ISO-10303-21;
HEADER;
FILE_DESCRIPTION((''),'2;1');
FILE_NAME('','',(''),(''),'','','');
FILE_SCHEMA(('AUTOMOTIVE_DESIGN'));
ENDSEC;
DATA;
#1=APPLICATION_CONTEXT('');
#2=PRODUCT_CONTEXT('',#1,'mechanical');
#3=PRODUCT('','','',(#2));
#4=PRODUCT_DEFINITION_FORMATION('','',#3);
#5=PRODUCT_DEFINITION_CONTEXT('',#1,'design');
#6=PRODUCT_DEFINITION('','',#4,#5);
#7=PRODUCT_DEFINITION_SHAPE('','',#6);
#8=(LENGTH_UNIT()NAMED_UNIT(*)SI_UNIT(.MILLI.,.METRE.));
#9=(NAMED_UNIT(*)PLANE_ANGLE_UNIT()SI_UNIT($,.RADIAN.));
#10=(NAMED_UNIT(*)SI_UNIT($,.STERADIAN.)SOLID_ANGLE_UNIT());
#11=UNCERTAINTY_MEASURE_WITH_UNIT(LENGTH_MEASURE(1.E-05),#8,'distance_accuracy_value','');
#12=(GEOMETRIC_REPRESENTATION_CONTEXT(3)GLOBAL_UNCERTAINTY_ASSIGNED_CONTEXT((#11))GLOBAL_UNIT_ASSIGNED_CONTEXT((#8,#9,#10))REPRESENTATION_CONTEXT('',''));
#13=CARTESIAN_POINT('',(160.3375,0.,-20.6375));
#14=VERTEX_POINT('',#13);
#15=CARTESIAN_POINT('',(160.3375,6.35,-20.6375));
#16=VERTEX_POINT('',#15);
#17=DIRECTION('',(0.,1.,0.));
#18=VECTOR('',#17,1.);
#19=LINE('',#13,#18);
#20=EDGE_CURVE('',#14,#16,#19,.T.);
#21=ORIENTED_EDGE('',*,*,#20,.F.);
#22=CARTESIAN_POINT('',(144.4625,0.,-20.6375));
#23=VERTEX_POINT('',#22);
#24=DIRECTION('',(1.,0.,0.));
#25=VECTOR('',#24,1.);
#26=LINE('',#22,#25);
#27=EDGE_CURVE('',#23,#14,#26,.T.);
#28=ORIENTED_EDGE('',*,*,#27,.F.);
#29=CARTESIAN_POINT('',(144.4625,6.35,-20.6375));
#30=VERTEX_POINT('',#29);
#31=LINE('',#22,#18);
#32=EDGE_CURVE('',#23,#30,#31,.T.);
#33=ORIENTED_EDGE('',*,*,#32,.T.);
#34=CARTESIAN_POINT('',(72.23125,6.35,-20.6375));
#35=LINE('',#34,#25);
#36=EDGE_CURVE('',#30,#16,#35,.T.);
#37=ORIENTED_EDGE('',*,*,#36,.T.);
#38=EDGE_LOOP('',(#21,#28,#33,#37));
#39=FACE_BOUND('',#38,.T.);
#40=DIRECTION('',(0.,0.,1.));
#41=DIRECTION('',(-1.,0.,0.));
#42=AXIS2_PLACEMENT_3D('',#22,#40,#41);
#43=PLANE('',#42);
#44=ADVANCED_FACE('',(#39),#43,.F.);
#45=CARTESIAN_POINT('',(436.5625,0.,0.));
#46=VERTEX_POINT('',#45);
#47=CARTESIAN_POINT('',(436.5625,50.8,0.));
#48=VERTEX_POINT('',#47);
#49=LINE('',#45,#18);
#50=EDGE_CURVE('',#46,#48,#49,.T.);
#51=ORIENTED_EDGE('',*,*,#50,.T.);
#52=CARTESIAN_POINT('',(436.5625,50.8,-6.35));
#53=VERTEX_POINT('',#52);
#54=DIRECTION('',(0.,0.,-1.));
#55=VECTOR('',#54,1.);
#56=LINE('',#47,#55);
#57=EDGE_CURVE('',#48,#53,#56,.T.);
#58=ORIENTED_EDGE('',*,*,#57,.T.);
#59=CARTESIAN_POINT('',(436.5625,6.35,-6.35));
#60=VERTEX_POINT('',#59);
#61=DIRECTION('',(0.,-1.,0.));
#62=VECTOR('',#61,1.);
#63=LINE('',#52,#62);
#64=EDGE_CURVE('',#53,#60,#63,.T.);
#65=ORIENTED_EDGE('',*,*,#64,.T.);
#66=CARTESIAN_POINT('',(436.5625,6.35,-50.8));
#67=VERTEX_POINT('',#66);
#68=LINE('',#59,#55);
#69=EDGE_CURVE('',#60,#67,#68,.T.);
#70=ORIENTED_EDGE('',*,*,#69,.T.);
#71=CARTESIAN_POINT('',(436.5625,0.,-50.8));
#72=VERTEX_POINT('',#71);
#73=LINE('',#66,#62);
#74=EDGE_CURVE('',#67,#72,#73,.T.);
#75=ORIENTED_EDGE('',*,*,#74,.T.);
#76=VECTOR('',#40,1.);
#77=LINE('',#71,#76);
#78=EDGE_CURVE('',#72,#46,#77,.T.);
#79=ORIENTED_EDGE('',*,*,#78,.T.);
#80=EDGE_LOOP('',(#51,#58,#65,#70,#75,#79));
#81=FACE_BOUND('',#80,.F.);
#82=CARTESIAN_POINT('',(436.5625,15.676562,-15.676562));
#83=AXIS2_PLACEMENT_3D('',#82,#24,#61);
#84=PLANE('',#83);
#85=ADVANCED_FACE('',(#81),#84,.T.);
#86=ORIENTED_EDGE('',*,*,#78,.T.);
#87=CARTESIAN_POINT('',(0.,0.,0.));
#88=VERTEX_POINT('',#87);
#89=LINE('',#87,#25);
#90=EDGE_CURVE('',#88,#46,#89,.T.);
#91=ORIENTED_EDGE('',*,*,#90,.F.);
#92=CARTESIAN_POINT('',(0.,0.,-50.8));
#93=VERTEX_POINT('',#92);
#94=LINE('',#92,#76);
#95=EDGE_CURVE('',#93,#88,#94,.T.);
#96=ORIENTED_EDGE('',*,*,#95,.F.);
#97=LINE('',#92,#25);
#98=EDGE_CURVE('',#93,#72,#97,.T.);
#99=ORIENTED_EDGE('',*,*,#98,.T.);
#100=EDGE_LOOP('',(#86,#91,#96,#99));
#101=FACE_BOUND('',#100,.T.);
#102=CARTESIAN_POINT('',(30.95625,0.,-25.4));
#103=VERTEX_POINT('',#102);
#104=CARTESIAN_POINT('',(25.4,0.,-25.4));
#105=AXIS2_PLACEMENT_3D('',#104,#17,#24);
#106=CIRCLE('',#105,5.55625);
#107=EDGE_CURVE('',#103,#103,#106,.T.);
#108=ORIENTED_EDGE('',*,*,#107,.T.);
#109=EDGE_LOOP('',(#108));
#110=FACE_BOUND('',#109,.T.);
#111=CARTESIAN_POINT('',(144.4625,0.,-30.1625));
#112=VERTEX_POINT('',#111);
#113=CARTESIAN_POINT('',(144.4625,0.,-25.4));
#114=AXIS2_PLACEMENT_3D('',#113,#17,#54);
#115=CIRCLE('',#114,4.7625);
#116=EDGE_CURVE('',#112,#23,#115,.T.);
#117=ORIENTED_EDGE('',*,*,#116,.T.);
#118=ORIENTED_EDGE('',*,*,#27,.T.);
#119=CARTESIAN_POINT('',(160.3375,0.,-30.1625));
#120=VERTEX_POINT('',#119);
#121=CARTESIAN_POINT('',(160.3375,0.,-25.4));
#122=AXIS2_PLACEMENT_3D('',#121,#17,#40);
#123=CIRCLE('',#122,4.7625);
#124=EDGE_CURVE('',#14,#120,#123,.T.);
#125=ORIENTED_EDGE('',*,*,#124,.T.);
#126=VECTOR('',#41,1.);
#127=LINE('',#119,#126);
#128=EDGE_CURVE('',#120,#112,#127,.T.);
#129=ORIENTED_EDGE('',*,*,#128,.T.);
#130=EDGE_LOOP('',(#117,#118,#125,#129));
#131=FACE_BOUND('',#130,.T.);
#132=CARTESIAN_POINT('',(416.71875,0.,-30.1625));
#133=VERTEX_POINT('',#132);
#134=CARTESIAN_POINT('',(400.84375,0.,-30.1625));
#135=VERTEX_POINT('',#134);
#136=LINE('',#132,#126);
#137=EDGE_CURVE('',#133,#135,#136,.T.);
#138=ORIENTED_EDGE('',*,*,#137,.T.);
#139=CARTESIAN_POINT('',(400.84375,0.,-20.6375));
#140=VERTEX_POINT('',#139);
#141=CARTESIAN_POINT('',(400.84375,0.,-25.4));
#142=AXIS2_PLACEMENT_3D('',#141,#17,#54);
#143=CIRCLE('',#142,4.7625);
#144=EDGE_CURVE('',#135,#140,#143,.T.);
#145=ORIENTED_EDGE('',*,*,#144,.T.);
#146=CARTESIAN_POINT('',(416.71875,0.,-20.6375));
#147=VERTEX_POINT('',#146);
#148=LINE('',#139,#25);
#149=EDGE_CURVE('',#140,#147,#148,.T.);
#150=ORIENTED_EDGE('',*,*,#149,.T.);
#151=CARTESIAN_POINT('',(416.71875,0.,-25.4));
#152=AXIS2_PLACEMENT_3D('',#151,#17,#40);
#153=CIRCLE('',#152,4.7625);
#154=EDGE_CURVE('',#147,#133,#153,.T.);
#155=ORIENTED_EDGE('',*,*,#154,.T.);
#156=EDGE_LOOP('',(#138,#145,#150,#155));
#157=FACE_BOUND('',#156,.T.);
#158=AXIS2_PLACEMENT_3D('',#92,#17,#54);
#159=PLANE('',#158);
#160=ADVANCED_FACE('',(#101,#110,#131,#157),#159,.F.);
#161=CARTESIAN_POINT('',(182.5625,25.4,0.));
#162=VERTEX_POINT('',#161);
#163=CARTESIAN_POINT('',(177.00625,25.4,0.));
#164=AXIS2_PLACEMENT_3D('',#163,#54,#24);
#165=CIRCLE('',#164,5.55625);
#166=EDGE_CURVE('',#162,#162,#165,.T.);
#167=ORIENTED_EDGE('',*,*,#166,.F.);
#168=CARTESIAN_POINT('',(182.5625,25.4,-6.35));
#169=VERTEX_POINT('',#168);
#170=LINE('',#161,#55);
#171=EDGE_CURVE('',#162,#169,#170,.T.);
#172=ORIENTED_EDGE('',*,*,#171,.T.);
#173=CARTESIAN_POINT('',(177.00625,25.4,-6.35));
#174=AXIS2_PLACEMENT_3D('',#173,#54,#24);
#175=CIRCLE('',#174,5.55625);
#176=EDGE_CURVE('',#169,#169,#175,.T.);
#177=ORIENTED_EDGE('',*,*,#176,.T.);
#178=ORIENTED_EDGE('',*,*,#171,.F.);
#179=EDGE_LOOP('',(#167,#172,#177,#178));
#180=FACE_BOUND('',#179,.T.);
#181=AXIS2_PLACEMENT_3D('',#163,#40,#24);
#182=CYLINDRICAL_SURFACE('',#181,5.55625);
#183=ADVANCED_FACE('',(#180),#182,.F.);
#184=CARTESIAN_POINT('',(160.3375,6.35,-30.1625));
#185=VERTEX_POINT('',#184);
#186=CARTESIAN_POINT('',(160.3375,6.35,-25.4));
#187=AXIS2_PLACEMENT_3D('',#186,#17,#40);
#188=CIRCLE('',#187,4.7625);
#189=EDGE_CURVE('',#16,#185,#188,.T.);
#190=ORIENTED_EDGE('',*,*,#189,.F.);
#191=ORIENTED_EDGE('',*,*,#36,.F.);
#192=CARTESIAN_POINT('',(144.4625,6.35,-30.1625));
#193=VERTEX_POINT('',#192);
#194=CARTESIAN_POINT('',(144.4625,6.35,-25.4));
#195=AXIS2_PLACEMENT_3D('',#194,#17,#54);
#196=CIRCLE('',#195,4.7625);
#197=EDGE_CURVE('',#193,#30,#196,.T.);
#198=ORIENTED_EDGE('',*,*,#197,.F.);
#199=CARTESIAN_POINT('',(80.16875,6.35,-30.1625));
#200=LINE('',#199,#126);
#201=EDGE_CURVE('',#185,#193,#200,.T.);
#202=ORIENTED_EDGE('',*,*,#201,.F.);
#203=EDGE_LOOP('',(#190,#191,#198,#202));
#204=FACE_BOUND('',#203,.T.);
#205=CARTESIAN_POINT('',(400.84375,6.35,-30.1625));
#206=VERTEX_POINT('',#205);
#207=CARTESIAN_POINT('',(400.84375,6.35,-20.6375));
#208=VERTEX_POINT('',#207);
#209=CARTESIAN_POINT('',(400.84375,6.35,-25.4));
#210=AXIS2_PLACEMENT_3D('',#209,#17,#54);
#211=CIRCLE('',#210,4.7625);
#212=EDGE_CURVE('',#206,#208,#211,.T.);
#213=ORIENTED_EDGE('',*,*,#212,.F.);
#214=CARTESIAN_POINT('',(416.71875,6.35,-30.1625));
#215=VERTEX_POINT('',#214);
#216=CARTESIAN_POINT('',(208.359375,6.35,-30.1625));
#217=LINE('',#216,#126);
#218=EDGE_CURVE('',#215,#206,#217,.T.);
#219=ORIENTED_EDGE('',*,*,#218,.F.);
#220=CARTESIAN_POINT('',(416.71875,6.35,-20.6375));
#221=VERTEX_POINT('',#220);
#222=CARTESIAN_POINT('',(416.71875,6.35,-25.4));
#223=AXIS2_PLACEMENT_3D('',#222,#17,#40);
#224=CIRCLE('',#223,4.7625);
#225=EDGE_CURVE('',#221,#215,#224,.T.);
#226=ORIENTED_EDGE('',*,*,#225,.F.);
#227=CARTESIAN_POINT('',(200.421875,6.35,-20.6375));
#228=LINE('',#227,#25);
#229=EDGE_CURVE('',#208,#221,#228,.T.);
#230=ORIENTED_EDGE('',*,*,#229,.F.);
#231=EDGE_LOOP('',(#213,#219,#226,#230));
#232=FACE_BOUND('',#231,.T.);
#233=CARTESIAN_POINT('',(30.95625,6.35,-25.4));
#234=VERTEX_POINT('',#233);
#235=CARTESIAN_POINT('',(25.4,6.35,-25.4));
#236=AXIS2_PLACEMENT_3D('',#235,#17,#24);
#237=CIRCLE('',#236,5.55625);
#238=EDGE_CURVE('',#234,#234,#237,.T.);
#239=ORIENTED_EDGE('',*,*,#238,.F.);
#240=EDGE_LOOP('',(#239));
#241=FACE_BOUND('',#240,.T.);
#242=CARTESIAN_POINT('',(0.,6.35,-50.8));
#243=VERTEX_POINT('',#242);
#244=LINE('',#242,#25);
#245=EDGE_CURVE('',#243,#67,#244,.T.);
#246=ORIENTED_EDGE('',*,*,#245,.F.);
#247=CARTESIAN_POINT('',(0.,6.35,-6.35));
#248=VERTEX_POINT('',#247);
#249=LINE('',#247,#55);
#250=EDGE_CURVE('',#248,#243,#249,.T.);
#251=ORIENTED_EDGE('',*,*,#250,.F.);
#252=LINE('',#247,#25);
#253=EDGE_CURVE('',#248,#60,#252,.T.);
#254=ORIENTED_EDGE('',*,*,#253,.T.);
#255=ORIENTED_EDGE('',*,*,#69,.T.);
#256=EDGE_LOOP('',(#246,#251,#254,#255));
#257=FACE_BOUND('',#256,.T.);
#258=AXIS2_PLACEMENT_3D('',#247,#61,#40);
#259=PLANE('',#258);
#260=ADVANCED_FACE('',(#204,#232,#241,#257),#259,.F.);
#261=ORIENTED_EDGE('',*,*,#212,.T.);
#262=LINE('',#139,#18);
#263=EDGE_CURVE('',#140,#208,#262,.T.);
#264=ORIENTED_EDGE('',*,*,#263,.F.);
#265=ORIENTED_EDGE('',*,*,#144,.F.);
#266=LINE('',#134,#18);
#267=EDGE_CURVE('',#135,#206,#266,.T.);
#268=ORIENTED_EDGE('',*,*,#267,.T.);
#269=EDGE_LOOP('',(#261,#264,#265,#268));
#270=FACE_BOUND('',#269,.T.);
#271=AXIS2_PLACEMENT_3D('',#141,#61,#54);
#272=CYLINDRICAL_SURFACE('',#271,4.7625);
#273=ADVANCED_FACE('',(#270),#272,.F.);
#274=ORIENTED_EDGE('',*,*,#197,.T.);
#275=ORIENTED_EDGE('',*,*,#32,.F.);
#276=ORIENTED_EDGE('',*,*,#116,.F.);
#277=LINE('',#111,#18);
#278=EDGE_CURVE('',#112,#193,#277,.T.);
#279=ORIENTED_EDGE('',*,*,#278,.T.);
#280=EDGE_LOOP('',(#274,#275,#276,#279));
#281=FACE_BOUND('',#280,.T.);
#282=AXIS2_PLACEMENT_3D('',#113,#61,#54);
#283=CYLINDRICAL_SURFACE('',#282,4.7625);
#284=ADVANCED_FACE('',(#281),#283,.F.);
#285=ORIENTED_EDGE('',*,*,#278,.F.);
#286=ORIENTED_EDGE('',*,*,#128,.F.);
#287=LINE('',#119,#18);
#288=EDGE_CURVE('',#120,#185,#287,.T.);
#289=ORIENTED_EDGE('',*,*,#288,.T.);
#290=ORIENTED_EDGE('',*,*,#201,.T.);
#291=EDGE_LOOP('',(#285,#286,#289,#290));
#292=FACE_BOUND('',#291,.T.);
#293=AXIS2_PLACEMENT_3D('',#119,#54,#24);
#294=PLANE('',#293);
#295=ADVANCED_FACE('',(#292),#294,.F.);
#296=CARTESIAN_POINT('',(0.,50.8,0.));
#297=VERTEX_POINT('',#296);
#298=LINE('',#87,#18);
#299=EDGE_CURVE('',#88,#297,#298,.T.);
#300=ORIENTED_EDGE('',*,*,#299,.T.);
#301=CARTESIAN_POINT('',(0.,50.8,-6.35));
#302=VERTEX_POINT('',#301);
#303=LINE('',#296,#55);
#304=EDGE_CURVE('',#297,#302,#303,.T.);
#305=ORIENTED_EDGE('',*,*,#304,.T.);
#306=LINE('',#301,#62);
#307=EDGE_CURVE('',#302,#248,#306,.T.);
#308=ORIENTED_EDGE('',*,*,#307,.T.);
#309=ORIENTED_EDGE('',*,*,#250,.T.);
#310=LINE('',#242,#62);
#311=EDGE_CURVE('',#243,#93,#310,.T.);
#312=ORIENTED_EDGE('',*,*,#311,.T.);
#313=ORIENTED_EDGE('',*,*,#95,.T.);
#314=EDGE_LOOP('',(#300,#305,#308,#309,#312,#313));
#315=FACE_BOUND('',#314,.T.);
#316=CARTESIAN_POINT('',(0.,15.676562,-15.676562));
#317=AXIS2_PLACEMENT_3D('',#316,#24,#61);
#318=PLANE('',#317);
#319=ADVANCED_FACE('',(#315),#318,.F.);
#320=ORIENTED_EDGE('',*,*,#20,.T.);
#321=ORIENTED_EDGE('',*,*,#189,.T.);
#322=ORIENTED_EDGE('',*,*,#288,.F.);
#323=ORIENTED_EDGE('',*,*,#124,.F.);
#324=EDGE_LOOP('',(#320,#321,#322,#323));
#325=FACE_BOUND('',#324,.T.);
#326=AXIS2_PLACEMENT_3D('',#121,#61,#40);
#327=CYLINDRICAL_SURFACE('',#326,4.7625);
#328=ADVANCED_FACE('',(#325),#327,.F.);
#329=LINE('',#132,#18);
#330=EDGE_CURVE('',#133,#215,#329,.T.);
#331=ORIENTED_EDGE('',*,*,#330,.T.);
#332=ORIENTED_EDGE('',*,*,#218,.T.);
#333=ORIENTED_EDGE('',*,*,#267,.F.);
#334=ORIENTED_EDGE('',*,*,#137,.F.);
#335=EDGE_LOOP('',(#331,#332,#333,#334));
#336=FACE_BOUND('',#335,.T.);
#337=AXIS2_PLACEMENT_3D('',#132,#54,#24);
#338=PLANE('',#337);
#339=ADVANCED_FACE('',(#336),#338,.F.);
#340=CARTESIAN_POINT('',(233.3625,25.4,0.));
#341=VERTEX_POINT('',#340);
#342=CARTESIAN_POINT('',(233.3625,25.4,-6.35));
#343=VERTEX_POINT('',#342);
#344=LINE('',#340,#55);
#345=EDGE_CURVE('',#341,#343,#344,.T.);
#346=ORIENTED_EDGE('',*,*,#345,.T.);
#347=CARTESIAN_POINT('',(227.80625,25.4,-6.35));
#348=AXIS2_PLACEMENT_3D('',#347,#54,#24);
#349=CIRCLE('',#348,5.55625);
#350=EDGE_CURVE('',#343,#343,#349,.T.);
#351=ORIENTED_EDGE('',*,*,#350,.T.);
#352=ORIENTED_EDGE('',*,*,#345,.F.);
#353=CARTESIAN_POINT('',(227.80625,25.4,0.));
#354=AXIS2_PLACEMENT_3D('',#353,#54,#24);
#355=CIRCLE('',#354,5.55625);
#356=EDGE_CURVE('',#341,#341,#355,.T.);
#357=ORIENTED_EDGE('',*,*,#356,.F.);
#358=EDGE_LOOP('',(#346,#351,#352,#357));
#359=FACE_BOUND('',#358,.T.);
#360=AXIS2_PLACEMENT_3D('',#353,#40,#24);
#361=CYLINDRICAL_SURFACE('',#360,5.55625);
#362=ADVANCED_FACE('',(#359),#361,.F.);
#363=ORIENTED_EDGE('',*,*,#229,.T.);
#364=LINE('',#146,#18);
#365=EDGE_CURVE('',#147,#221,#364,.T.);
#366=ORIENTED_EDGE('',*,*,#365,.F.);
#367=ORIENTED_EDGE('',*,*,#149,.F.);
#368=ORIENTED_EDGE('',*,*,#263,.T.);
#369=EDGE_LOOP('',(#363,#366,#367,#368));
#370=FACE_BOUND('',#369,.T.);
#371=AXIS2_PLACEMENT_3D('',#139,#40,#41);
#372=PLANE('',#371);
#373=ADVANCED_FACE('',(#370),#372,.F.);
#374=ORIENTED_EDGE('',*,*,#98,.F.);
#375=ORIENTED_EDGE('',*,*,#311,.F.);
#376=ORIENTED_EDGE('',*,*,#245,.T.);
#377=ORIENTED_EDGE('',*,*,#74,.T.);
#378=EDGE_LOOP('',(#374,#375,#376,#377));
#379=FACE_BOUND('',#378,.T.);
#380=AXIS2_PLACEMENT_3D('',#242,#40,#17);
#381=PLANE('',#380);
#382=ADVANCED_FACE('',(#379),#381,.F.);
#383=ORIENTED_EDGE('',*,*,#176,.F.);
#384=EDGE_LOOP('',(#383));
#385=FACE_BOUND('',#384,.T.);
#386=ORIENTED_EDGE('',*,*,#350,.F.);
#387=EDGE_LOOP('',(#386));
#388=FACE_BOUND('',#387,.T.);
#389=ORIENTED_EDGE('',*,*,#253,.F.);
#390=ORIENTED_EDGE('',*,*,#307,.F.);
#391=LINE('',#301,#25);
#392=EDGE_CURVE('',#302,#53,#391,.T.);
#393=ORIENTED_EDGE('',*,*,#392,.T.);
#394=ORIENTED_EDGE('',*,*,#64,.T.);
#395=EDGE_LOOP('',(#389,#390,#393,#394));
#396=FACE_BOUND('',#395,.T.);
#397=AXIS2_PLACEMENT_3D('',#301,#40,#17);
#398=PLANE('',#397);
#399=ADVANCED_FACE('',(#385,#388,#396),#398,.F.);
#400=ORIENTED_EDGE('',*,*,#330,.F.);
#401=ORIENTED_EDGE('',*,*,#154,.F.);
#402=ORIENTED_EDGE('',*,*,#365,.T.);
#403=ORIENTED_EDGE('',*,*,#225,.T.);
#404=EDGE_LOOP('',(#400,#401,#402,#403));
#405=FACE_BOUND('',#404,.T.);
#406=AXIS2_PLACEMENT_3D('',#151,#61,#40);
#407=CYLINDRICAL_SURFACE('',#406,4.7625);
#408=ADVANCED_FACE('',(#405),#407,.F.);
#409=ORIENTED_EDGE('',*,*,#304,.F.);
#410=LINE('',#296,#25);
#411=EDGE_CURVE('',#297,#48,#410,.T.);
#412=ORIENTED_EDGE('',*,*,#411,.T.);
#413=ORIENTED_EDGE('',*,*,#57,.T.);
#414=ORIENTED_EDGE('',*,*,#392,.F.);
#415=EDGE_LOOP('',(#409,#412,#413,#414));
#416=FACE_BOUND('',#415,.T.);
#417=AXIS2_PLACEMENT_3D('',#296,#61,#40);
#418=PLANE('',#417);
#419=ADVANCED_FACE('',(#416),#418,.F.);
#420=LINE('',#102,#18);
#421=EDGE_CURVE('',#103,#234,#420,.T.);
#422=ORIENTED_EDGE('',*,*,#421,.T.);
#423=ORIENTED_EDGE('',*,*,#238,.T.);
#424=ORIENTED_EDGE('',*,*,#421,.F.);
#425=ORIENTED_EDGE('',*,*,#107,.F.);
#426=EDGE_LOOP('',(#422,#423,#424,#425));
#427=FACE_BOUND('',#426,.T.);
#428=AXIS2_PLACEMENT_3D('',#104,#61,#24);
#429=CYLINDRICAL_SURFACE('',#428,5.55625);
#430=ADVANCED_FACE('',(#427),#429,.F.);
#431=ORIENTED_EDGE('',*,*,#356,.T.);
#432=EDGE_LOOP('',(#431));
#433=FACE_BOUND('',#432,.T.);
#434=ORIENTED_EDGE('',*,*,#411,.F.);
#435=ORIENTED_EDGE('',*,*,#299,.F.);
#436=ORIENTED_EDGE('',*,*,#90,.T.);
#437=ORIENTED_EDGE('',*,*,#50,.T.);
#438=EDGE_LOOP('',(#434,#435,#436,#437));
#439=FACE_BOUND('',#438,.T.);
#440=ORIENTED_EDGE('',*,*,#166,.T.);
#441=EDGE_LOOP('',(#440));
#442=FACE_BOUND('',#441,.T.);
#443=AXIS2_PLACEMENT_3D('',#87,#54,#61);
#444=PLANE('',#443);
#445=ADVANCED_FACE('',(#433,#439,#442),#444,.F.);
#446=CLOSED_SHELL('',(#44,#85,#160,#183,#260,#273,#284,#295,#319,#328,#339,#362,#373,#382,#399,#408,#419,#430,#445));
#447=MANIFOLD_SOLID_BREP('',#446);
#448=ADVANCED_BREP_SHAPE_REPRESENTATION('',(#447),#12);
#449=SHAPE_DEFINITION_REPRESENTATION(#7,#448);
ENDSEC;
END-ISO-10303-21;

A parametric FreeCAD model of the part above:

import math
import FreeCAD as App
import Part
import Sketcher
from FreeCAD import Vector
Q = App.Units.Quantity


def add_polygon(sketch, points):
    """Adds a closed chain of lines whose ends are joined by coincident constraints."""
    first, n = sketch.GeometryCount, len(points)
    for a, b in zip(points, points[1:] + points[:1]):
        sketch.addGeometry(Part.LineSegment(App.Vector(*a, 0), App.Vector(*b, 0)), False)
    for i in range(n):
        sketch.addConstraint(Sketcher.Constraint("Coincident", first + i, 2, first + (i + 1) % n, 1))

doc = App.newDocument("Part")
body = doc.addObject("PartDesign::Body", "Body")

# Sketch on YZ plane
sketch1 = body.newObject("Sketcher::SketchObject", "Sketch")
sketch1.AttachmentSupport = (doc.getObject("YZ_Plane"), [""])
sketch1.MapMode = "FlatFace"
add_polygon(sketch1, [(0, 51), (0, 0), (51, 0), (51, 6), (6, 6), (6, 51)])  # lines 0-5
sketch1.addConstraint([
    Sketcher.Constraint("Vertical", 0),
    Sketcher.Constraint("Horizontal", 1),
    Sketcher.Constraint("Vertical", 2),
    Sketcher.Constraint("Horizontal", 3),
    Sketcher.Constraint("Vertical", 4),
    Sketcher.Constraint("Horizontal", 5),
    Sketcher.Constraint("Coincident", 0, 2, -1, 1),
    Sketcher.Constraint("Equal", 1, 0),
    Sketcher.Constraint("Equal", 5, 2),
    Sketcher.Constraint("DistanceX", 1, 1, 1, 2, Q("2 in")),
    Sketcher.Constraint("DistanceX", 3, 2, 3, 1, Q("1.75 in")),
])
pad1 = body.newObject("PartDesign::Pad", "Pad")
pad1.Profile = sketch1
pad1.Length = Q("17.1875 in")

# Sketch on XZ plane
sketch2 = body.newObject("Sketcher::SketchObject", "Sketch001")
sketch2.AttachmentSupport = (doc.getObject("XZ_Plane"), [""])
sketch2.MapMode = "FlatFace"
sketch2.addGeometry([
    Part.Circle(Vector(25.4, 25.4, 0), Vector(0, 0, 1), 5.6),  # 0
    Part.ArcOfCircle(Part.Circle(Vector(144.5, 25.4, 0), Vector(0, 0, 1), 4.8), math.radians(90), math.radians(270)),  # 1
    Part.LineSegment(Vector(144.5, 20.6, 0), Vector(160.3, 20.6, 0)),  # 2
    Part.ArcOfCircle(Part.Circle(Vector(160.3, 25.4, 0), Vector(0, 0, 1), 4.8), math.radians(-90), math.radians(90)),  # 3
    Part.LineSegment(Vector(160.3, 30.2, 0), Vector(144.5, 30.2, 0)),  # 4
    Part.ArcOfCircle(Part.Circle(Vector(400.8, 25.4, 0), Vector(0, 0, 1), 4.8), math.radians(90), math.radians(270)),  # 5
    Part.LineSegment(Vector(400.8, 20.6, 0), Vector(416.7, 20.6, 0)),  # 6
    Part.ArcOfCircle(Part.Circle(Vector(416.7, 25.4, 0), Vector(0, 0, 1), 4.8), math.radians(-90), math.radians(90)),  # 7
    Part.LineSegment(Vector(416.7, 30.2, 0), Vector(400.8, 30.2, 0)),  # 8
], False)
sketch2.addConstraint([
    Sketcher.Constraint("Tangent", 1, 2, 2, 1),
    Sketcher.Constraint("Tangent", 2, 2, 3, 1),
    Sketcher.Constraint("Tangent", 3, 2, 4, 1),
    Sketcher.Constraint("Tangent", 4, 2, 1, 1),
    Sketcher.Constraint("Tangent", 5, 2, 6, 1),
    Sketcher.Constraint("Tangent", 6, 2, 7, 1),
    Sketcher.Constraint("Tangent", 7, 2, 8, 1),
    Sketcher.Constraint("Tangent", 8, 2, 5, 1),
    Sketcher.Constraint("Horizontal", 2),
    Sketcher.Constraint("Horizontal", 4),
    Sketcher.Constraint("Horizontal", 6),
    Sketcher.Constraint("Horizontal", 8),
    Sketcher.Constraint("Equal", 3, 5),
    Sketcher.Constraint("Horizontal", 0, 3, 1, 3),
    Sketcher.Constraint("Horizontal", 3, 3, 5, 3),
    Sketcher.Constraint("Equal", 4, 6),
    Sketcher.Constraint("Diameter", 0, Q("0.4375 in")),
    Sketcher.Constraint("DistanceX", -1, 1, 0, 3, Q("1 in")),
    Sketcher.Constraint("DistanceY", -1, 1, 0, 3, Q("1 in")),
    Sketcher.Constraint("Radius", 1, Q("0.1875 in")),
    Sketcher.Constraint("DistanceX", 2, 1, 2, 2, Q("0.625 in")),
    Sketcher.Constraint("DistanceX", -1, 1, 1, 3, Q("5.6875 in")),
    Sketcher.Constraint("DistanceX", -1, 1, 5, 3, Q("15.78125 in")),
])
pocket1 = body.newObject("PartDesign::Pocket", "Pocket")
pocket1.Profile = sketch2
pocket1.Type = "ThroughAll"

# Sketch on XY plane
sketch3 = body.newObject("Sketcher::SketchObject", "Sketch002")
sketch3.AttachmentSupport = (doc.getObject("XY_Plane"), [""])
sketch3.MapMode = "FlatFace"
sketch3.addGeometry([
    Part.Circle(Vector(228, 25, 0), Vector(0, 0, 1), 6),
    Part.Circle(Vector(177, 25, 0), Vector(0, 0, 1), 6),
], False)
sketch3.addConstraint([
    Sketcher.Constraint("Equal", 0, 1),
    Sketcher.Constraint("Horizontal", 0, 3, 1, 3),
    Sketcher.Constraint("Diameter", 0, Q("0.4375 in")),
    Sketcher.Constraint("DistanceY", -1, 1, 0, 3, Q("1 in")),
    Sketcher.Constraint("DistanceX", 1, 3, 0, 3, Q("2 in")),
    Sketcher.Constraint("DistanceX", -1, 1, 0, 3, Q("8.96875 in")),
])
pocket2 = body.newObject("PartDesign::Pocket", "Pocket001")
pocket2.Profile = sketch3
pocket2.Type = "ThroughAll"
pocket2.Reversed = True
body2 = doc.addObject("PartDesign::Body", "Body001")
doc.recompute()

mirroring = doc.addObject("Part::Mirroring", "Mirroring")
mirroring.Source = body
mirroring.Base = Vector(0, 0, 0)
mirroring.Normal = Vector(0, 0, 1)
body2.BaseFeature = mirroring
doc.recompute()
body.Visibility = False
mirroring.Visibility = False

doc.recompute()
